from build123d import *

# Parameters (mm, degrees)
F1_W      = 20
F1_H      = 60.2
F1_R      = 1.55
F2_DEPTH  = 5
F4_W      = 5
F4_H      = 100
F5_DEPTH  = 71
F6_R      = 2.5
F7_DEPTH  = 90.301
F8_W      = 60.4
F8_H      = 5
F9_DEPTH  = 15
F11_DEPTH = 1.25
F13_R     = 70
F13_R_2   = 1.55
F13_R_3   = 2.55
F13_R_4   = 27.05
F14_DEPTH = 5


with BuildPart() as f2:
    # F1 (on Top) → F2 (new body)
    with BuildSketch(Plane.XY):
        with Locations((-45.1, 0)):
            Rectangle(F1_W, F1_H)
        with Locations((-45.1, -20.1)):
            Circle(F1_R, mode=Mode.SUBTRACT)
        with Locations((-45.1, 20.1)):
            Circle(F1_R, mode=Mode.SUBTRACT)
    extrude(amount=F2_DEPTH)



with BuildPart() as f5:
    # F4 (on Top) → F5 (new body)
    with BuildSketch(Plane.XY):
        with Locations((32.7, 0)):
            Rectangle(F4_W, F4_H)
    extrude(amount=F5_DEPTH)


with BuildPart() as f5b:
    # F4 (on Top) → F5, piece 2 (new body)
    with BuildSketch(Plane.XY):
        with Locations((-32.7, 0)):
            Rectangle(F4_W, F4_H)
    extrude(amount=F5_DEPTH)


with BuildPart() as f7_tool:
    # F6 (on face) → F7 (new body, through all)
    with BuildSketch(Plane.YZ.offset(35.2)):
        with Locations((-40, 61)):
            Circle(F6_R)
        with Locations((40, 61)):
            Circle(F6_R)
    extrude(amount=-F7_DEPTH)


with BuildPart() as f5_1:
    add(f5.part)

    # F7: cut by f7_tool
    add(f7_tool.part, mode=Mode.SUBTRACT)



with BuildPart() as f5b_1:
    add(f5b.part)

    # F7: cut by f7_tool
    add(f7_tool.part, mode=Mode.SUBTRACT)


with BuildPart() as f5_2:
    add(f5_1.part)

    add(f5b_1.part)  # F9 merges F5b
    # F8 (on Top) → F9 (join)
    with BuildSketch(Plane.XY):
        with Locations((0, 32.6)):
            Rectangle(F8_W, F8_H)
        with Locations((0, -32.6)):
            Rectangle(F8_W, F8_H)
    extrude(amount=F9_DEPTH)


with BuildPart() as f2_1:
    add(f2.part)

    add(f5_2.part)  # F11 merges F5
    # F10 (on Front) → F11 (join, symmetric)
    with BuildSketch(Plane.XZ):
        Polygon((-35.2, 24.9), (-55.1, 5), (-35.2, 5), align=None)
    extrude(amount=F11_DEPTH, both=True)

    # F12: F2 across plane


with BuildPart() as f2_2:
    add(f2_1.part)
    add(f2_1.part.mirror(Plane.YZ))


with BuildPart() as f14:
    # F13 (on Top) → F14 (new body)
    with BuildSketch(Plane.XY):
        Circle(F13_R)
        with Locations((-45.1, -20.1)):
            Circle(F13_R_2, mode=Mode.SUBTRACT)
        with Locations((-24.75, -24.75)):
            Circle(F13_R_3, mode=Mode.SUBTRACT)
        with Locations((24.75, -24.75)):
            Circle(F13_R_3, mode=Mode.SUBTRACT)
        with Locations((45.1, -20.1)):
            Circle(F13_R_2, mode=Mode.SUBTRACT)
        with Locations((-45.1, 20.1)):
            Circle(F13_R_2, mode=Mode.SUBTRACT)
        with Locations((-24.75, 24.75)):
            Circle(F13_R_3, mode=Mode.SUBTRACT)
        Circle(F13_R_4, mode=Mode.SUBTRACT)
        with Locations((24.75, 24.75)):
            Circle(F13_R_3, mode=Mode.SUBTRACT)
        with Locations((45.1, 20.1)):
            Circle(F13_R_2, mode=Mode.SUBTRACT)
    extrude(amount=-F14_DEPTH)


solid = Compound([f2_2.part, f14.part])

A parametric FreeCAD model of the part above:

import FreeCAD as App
import Part
import Sketcher
Q = App.Units.Quantity

doc = App.newDocument("Part")
body = doc.addObject("PartDesign::Body", "Body")

# Sketch on XY plane
sketch1 = doc.addObject("Sketcher::SketchObject", "Sketch")
body.addObject(sketch1)
sketch1.AttachmentSupport = (doc.XY_Plane, [""])
sketch1.MapMode = "FlatFace"
sketch1.addGeometry(Part.LineSegment(App.Vector(-55.1, 30.1, 0), App.Vector(-55.1, -30.1, 0)), False)
sketch1.addGeometry(Part.LineSegment(App.Vector(-55.1, -30.1, 0), App.Vector(-35.1, -30.1, 0)), False)
sketch1.addGeometry(Part.LineSegment(App.Vector(-35.1, -30.1, 0), App.Vector(-35.1, 30.1, 0)), False)
sketch1.addGeometry(Part.LineSegment(App.Vector(-35.1, 30.1, 0), App.Vector(-55.1, 30.1, 0)), False)
sketch1.addGeometry(Part.Circle(App.Vector(-45.1, -20.1, 0), App.Vector(0, 0, 1), 1.55), False)
sketch1.addGeometry(Part.Circle(App.Vector(-45.1, 20.1, 0), App.Vector(0, 0, 1), 1.55), False)
sketch1.addConstraint(Sketcher.Constraint("Coincident", 0, 2, 1, 1))
sketch1.addConstraint(Sketcher.Constraint("Coincident", 1, 2, 2, 1))
sketch1.addConstraint(Sketcher.Constraint("Coincident", 2, 2, 3, 1))
sketch1.addConstraint(Sketcher.Constraint("Coincident", 3, 2, 0, 1))
sketch1.addConstraint(Sketcher.Constraint("Vertical", 0))
sketch1.addConstraint(Sketcher.Constraint("Horizontal", 1))
sketch1.addConstraint(Sketcher.Constraint("Vertical", 2))
sketch1.addConstraint(Sketcher.Constraint("Horizontal", 3))
sketch1.addConstraint(Sketcher.Constraint("Equal", 4, 5))
sketch1.addConstraint(Sketcher.Constraint("Symmetric", 4, 3, 5, 3, -1))
sketch1.addConstraint(Sketcher.Constraint("Diameter", 4, Q("3.1 mm")))
sketch1.addConstraint(Sketcher.Constraint("DistanceX", 1, 1, 1, 2, Q("20 mm")))
sketch1.addConstraint(Sketcher.Constraint("DistanceY", 0, 2, 0, 1, Q("60.2 mm")))
sketch1.addConstraint(Sketcher.Constraint("DistanceX", 0, 2, 4, 3, Q("10 mm")))
sketch1.addConstraint(Sketcher.Constraint("DistanceY", 0, 2, 4, 3, Q("10 mm")))
sketch1.addConstraint(Sketcher.Constraint("DistanceY", 5, 3, 2, 2, Q("10 mm")))
sketch1.addConstraint(Sketcher.Constraint("DistanceX", 4, 3, -1, 1, Q("45.1 mm")))
pad1 = doc.addObject("PartDesign::Pad", "Pad")
body.addObject(pad1)
pad1.Profile = sketch1
pad1.Length = 5
body2 = doc.addObject("PartDesign::Body", "Body001")

# Sketch on XY plane
sketch2 = doc.addObject("Sketcher::SketchObject", "Sketch001")
body2.addObject(sketch2)
sketch2.AttachmentSupport = (doc.getObject("XY_Plane001"), [""])
sketch2.MapMode = "FlatFace"
sketch2.addGeometry(Part.LineSegment(App.Vector(30.2, 50, 0), App.Vector(30.2, -50, 0)), False)
sketch2.addGeometry(Part.LineSegment(App.Vector(30.2, -50, 0), App.Vector(35.2, -50, 0)), False)
sketch2.addGeometry(Part.LineSegment(App.Vector(35.2, -50, 0), App.Vector(35.2, 50, 0)), False)
sketch2.addGeometry(Part.LineSegment(App.Vector(35.2, 50, 0), App.Vector(30.2, 50, 0)), False)
sketch2.addConstraint(Sketcher.Constraint("Coincident", 0, 2, 1, 1))
sketch2.addConstraint(Sketcher.Constraint("Coincident", 1, 2, 2, 1))
sketch2.addConstraint(Sketcher.Constraint("Coincident", 2, 2, 3, 1))
sketch2.addConstraint(Sketcher.Constraint("Coincident", 3, 2, 0, 1))
sketch2.addConstraint(Sketcher.Constraint("Vertical", 0))
sketch2.addConstraint(Sketcher.Constraint("Horizontal", 1))
sketch2.addConstraint(Sketcher.Constraint("Vertical", 2))
sketch2.addConstraint(Sketcher.Constraint("Horizontal", 3))
sketch2.addConstraint(Sketcher.Constraint("DistanceX", 1, 1, 1, 2, Q("5 mm")))
sketch2.addConstraint(Sketcher.Constraint("DistanceY", 0, 2, 0, 1, Q("100 mm")))
sketch2.addConstraint(Sketcher.Constraint("DistanceY", 0, 2, -1, 1, Q("50 mm")))
sketch2.addConstraint(Sketcher.Constraint("DistanceX", -1, 1, 0, 2, Q("30.2 mm")))
pad2 = doc.addObject("PartDesign::Pad", "Pad001")
body2.addObject(pad2)
pad2.Profile = sketch2
pad2.Length = 71
body3 = doc.addObject("PartDesign::Body", "Body002")

# Sketch on XY plane
sketch3 = doc.addObject("Sketcher::SketchObject", "Sketch002")
body3.addObject(sketch3)
sketch3.AttachmentSupport = (doc.getObject("XY_Plane002"), [""])
sketch3.MapMode = "FlatFace"
sketch3.addGeometry(Part.LineSegment(App.Vector(-35.2, 50, 0), App.Vector(-35.2, -50, 0)), False)
sketch3.addGeometry(Part.LineSegment(App.Vector(-35.2, -50, 0), App.Vector(-30.2, -50, 0)), False)
sketch3.addGeometry(Part.LineSegment(App.Vector(-30.2, -50, 0), App.Vector(-30.2, 50, 0)), False)
sketch3.addGeometry(Part.LineSegment(App.Vector(-30.2, 50, 0), App.Vector(-35.2, 50, 0)), False)
sketch3.addConstraint(Sketcher.Constraint("Coincident", 0, 2, 1, 1))
sketch3.addConstraint(Sketcher.Constraint("Coincident", 1, 2, 2, 1))
sketch3.addConstraint(Sketcher.Constraint("Coincident", 2, 2, 3, 1))
sketch3.addConstraint(Sketcher.Constraint("Coincident", 3, 2, 0, 1))
sketch3.addConstraint(Sketcher.Constraint("Vertical", 0))
sketch3.addConstraint(Sketcher.Constraint("Horizontal", 1))
sketch3.addConstraint(Sketcher.Constraint("Vertical", 2))
sketch3.addConstraint(Sketcher.Constraint("Horizontal", 3))
sketch3.addConstraint(Sketcher.Constraint("DistanceX", 1, 1, 1, 2, Q("5 mm")))
sketch3.addConstraint(Sketcher.Constraint("DistanceY", 0, 2, 0, 1, Q("100 mm")))
sketch3.addConstraint(Sketcher.Constraint("DistanceY", 0, 2, -1, 1, Q("50 mm")))
sketch3.addConstraint(Sketcher.Constraint("DistanceX", 0, 2, -1, 1, Q("35.2 mm")))
pad3 = doc.addObject("PartDesign::Pad", "Pad002")
body3.addObject(pad3)
pad3.Profile = sketch3
pad3.Length = 71
body4 = doc.addObject("PartDesign::Body", "Body003")
body4.AllowCompound = True

# Sketch on YZ plane
sketch4 = doc.addObject("Sketcher::SketchObject", "Sketch003")
body4.addObject(sketch4)
sketch4.AttachmentSupport = (doc.getObject("YZ_Plane003"), [""])
sketch4.MapMode = "FlatFace"
sketch4.AttachmentOffset = App.Placement(App.Vector(0, 0, 35.2), App.Rotation())
sketch4.addGeometry(Part.Circle(App.Vector(-40, 61, 0), App.Vector(0, 0, 1), 2.5), False)
sketch4.addGeometry(Part.Circle(App.Vector(40, 61, 0), App.Vector(0, 0, 1), 2.5), False)
sketch4.addConstraint(Sketcher.Constraint("Equal", 0, 1))
sketch4.addConstraint(Sketcher.Constraint("Symmetric", 0, 3, 1, 3, -2))
sketch4.addConstraint(Sketcher.Constraint("Diameter", 0, Q("5 mm")))
sketch4.addConstraint(Sketcher.Constraint("DistanceX", 0, 3, -1, 1, Q("40 mm")))
sketch4.addConstraint(Sketcher.Constraint("DistanceY", -1, 1, 0, 3, Q("61 mm")))
pad4 = doc.addObject("PartDesign::Pad", "Pad003")
body4.addObject(pad4)
pad4.Profile = sketch4
pad4.Length = 90.301
pad4.Reversed = True
doc.recompute()

body5 = doc.addObject("PartDesign::Body", "Body004")
body5.BaseFeature = body4
boolean = doc.addObject("PartDesign::Boolean", "Boolean")
body2.addObject(boolean)
boolean.Type = "Cut"
boolean.addObjects([body5])
doc.recompute()

boolean2 = doc.addObject("PartDesign::Boolean", "Boolean001")
body3.addObject(boolean2)
boolean2.Type = "Cut"
boolean2.addObjects([body4])
body2.AllowCompound = True
doc.recompute()

boolean3 = doc.addObject("PartDesign::Boolean", "Boolean002")
body2.addObject(boolean3)
boolean3.Type = "Fuse"
boolean3.addObjects([body3])

# Sketch on XY plane
sketch5 = doc.addObject("Sketcher::SketchObject", "Sketch004")
body2.addObject(sketch5)
sketch5.AttachmentSupport = (doc.getObject("XY_Plane001"), [""])
sketch5.MapMode = "FlatFace"
sketch5.addGeometry(Part.LineSegment(App.Vector(-30.2, 35.1, 0), App.Vector(-30.2, 30.1, 0)), False)
sketch5.addGeometry(Part.LineSegment(App.Vector(-30.2, 30.1, 0), App.Vector(30.2, 30.1, 0)), False)
sketch5.addGeometry(Part.LineSegment(App.Vector(30.2, 30.1, 0), App.Vector(30.2, 35.1, 0)), False)
sketch5.addGeometry(Part.LineSegment(App.Vector(30.2, 35.1, 0), App.Vector(-30.2, 35.1, 0)), False)
sketch5.addGeometry(Part.LineSegment(App.Vector(-30.2, -30.1, 0), App.Vector(-30.2, -35.1, 0)), False)
sketch5.addGeometry(Part.LineSegment(App.Vector(-30.2, -35.1, 0), App.Vector(30.2, -35.1, 0)), False)
sketch5.addGeometry(Part.LineSegment(App.Vector(30.2, -35.1, 0), App.Vector(30.2, -30.1, 0)), False)
sketch5.addGeometry(Part.LineSegment(App.Vector(30.2, -30.1, 0), App.Vector(-30.2, -30.1, 0)), False)
sketch5.addConstraint(Sketcher.Constraint("Coincident", 0, 2, 1, 1))
sketch5.addConstraint(Sketcher.Constraint("Coincident", 1, 2, 2, 1))
sketch5.addConstraint(Sketcher.Constraint("Coincident", 2, 2, 3, 1))
sketch5.addConstraint(Sketcher.Constraint("Coincident", 3, 2, 0, 1))
sketch5.addConstraint(Sketcher.Constraint("Coincident", 4, 2, 5, 1))
sketch5.addConstraint(Sketcher.Constraint("Coincident", 5, 2, 6, 1))
sketch5.addConstraint(Sketcher.Constraint("Coincident", 6, 2, 7, 1))
sketch5.addConstraint(Sketcher.Constraint("Coincident", 7, 2, 4, 1))
sketch5.addConstraint(Sketcher.Constraint("Vertical", 0))
sketch5.addConstraint(Sketcher.Constraint("Horizontal", 1))
sketch5.addConstraint(Sketcher.Constraint("Vertical", 2))
sketch5.addConstraint(Sketcher.Constraint("Horizontal", 3))
sketch5.addConstraint(Sketcher.Constraint("Vertical", 4))
sketch5.addConstraint(Sketcher.Constraint("Horizontal", 5))
sketch5.addConstraint(Sketcher.Constraint("Vertical", 6))
sketch5.addConstraint(Sketcher.Constraint("Horizontal", 7))
sketch5.addConstraint(Sketcher.Constraint("Symmetric", 2, 2, 4, 2, -1, 1))
sketch5.addConstraint(Sketcher.Constraint("Symmetric", 0, 2, 6, 2, -1, 1))
sketch5.addConstraint(Sketcher.Constraint("Vertical", 3, 2, 4, 2))
sketch5.addConstraint(Sketcher.Constraint("DistanceY", 0, 2, 0, 1, Q("5 mm")))
sketch5.addConstraint(Sketcher.Constraint("DistanceX", 1, 1, 1, 2, Q("60.4 mm")))
sketch5.addConstraint(Sketcher.Constraint("DistanceY", -1, 1, 0, 2, Q("30.1 mm")))
pad5 = doc.addObject("PartDesign::Pad", "Pad004")
body2.addObject(pad5)
pad5.Profile = sketch5
pad5.Length = 15
doc.recompute()

boolean4 = doc.addObject("PartDesign::Boolean", "Boolean003")
body.addObject(boolean4)
boolean4.Type = "Fuse"
boolean4.addObjects([body2])

# Sketch on XZ plane
sketch6 = doc.addObject("Sketcher::SketchObject", "Sketch005")
body.addObject(sketch6)
sketch6.AttachmentSupport = (doc.XZ_Plane, [""])
sketch6.MapMode = "FlatFace"
sketch6.addGeometry(Part.LineSegment(App.Vector(-35.2, 24.9, 0), App.Vector(-55.1, 5, 0)), False)
sketch6.addGeometry(Part.LineSegment(App.Vector(-55.1, 5, 0), App.Vector(-35.2, 5, 0)), False)
sketch6.addGeometry(Part.LineSegment(App.Vector(-35.2, 5, 0), App.Vector(-35.2, 24.9, 0)), False)
sketch6.addConstraint(Sketcher.Constraint("Coincident", 0, 2, 1, 1))
sketch6.addConstraint(Sketcher.Constraint("Coincident", 1, 2, 2, 1))
sketch6.addConstraint(Sketcher.Constraint("Coincident", 2, 2, 0, 1))
sketch6.addConstraint(Sketcher.Constraint("Horizontal", 1))
sketch6.addConstraint(Sketcher.Constraint("Vertical", 2))
sketch6.addConstraint(Sketcher.Constraint("Equal", 1, 2))
sketch6.addConstraint(Sketcher.Constraint("DistanceX", 1, 1, 1, 2, Q("19.9 mm")))
sketch6.addConstraint(Sketcher.Constraint("DistanceY", -1, 1, 0, 2, Q("5 mm")))
sketch6.addConstraint(Sketcher.Constraint("DistanceX", 0, 2, -1, 1, Q("55.1 mm")))
pad6 = doc.addObject("PartDesign::Pad", "Pad005")
body.addObject(pad6)
pad6.Profile = sketch6
pad6.Length = 2.5
pad6.Midplane = True
body6 = doc.addObject("PartDesign::Body", "Body005")
doc.recompute()

body6.BaseFeature = body
doc.recompute()

mirroring = doc.addObject("Part::Mirroring", "Mirroring")
mirroring.Source = body
mirroring.Base = App.Vector(0, 0, 0)
mirroring.Normal = App.Vector(1, 0, 0)
body7 = doc.addObject("PartDesign::Body", "Body006")
body7.BaseFeature = mirroring
boolean5 = doc.addObject("PartDesign::Boolean", "Boolean004")
body6.addObject(boolean5)
boolean5.Type = "Fuse"
boolean5.addObjects([body7])
doc.recompute()
body8 = doc.addObject("PartDesign::Body", "Body007")

# Sketch on XY plane
sketch7 = doc.addObject("Sketcher::SketchObject", "Sketch006")
body8.addObject(sketch7)
sketch7.AttachmentSupport = (doc.getObject("XY_Plane007"), [""])
sketch7.MapMode = "FlatFace"
sketch7.addGeometry(Part.Circle(App.Vector(0, 0, 0), App.Vector(0, 0, 1), 70), False)
sketch7.addGeometry(Part.Circle(App.Vector(-24.75, -24.75, 0), App.Vector(0, 0, 1), 2.55), False)
sketch7.addGeometry(Part.Circle(App.Vector(-45.1, -20.1, 0), App.Vector(0, 0, 1), 1.55), False)
sketch7.addGeometry(Part.Circle(App.Vector(24.75, -24.75, 0), App.Vector(0, 0, 1), 2.55), False)
sketch7.addGeometry(Part.Circle(App.Vector(45.1, -20.1, 0), App.Vector(0, 0, 1), 1.55), False)
sketch7.addGeometry(Part.Circle(App.Vector(-45.1, 20.1, 0), App.Vector(0, 0, 1), 1.55), False)
sketch7.addGeometry(Part.Circle(App.Vector(-24.75, 24.75, 0), App.Vector(0, 0, 1), 2.55), False)
sketch7.addGeometry(Part.Circle(App.Vector(0, 0, 0), App.Vector(0, 0, 1), 27.05), False)
sketch7.addGeometry(Part.Circle(App.Vector(45.1, 20.1, 0), App.Vector(0, 0, 1), 1.55), False)
sketch7.addGeometry(Part.Circle(App.Vector(24.75, 24.75, 0), App.Vector(0, 0, 1), 2.55), False)
sketch7.addConstraint(Sketcher.Constraint("Coincident", 0, 3, -1, 1))
sketch7.addConstraint(Sketcher.Constraint("Coincident", 7, 3, -1, 1))
sketch7.addConstraint(Sketcher.Constraint("Equal", 1, 3))
sketch7.addConstraint(Sketcher.Constraint("Equal", 2, 4))
sketch7.addConstraint(Sketcher.Constraint("Equal", 4, 5))
sketch7.addConstraint(Sketcher.Constraint("Equal", 3, 6))
sketch7.addConstraint(Sketcher.Constraint("Equal", 5, 8))
sketch7.addConstraint(Sketcher.Constraint("Equal", 6, 9))
sketch7.addConstraint(Sketcher.Constraint("Symmetric", 4, 3, 5, 3, -1, 1))
sketch7.addConstraint(Sketcher.Constraint("Symmetric", 3, 3, 6, 3, -1, 1))
sketch7.addConstraint(Sketcher.Constraint("Symmetric", 2, 3, 8, 3, -1, 1))
sketch7.addConstraint(Sketcher.Constraint("Symmetric", 1, 3, 9, 3, -1, 1))
sketch7.addConstraint(Sketcher.Constraint("Symmetric", 1, 3, 3, 3, -2))
sketch7.addConstraint(Sketcher.Constraint("Symmetric", 2, 3, 4, 3, -2))
sketch7.addConstraint(Sketcher.Constraint("Diameter", 0, Q("140 mm")))
sketch7.addConstraint(Sketcher.Constraint("Diameter", 1, Q("5.1 mm")))
sketch7.addConstraint(Sketcher.Constraint("Diameter", 2, Q("3.1 mm")))
sketch7.addConstraint(Sketcher.Constraint("Diameter", 7, Q("54.1 mm")))
sketch7.addConstraint(Sketcher.Constraint("DistanceX", 2, 3, -1, 1, Q("45.1 mm")))
sketch7.addConstraint(Sketcher.Constraint("DistanceY", 2, 3, -1, 1, Q("20.1 mm")))
sketch7.addConstraint(Sketcher.Constraint("DistanceX", 1, 3, 3, 3, Q("49.5 mm")))
sketch7.addConstraint(Sketcher.Constraint("DistanceY", 1, 3, 6, 3, Q("49.5 mm")))
pad7 = doc.addObject("PartDesign::Pad", "Pad006")
body8.addObject(pad7)
pad7.Profile = sketch7
pad7.Length = 5
pad7.Reversed = True
mirroring.Visibility = False

doc.recompute()
